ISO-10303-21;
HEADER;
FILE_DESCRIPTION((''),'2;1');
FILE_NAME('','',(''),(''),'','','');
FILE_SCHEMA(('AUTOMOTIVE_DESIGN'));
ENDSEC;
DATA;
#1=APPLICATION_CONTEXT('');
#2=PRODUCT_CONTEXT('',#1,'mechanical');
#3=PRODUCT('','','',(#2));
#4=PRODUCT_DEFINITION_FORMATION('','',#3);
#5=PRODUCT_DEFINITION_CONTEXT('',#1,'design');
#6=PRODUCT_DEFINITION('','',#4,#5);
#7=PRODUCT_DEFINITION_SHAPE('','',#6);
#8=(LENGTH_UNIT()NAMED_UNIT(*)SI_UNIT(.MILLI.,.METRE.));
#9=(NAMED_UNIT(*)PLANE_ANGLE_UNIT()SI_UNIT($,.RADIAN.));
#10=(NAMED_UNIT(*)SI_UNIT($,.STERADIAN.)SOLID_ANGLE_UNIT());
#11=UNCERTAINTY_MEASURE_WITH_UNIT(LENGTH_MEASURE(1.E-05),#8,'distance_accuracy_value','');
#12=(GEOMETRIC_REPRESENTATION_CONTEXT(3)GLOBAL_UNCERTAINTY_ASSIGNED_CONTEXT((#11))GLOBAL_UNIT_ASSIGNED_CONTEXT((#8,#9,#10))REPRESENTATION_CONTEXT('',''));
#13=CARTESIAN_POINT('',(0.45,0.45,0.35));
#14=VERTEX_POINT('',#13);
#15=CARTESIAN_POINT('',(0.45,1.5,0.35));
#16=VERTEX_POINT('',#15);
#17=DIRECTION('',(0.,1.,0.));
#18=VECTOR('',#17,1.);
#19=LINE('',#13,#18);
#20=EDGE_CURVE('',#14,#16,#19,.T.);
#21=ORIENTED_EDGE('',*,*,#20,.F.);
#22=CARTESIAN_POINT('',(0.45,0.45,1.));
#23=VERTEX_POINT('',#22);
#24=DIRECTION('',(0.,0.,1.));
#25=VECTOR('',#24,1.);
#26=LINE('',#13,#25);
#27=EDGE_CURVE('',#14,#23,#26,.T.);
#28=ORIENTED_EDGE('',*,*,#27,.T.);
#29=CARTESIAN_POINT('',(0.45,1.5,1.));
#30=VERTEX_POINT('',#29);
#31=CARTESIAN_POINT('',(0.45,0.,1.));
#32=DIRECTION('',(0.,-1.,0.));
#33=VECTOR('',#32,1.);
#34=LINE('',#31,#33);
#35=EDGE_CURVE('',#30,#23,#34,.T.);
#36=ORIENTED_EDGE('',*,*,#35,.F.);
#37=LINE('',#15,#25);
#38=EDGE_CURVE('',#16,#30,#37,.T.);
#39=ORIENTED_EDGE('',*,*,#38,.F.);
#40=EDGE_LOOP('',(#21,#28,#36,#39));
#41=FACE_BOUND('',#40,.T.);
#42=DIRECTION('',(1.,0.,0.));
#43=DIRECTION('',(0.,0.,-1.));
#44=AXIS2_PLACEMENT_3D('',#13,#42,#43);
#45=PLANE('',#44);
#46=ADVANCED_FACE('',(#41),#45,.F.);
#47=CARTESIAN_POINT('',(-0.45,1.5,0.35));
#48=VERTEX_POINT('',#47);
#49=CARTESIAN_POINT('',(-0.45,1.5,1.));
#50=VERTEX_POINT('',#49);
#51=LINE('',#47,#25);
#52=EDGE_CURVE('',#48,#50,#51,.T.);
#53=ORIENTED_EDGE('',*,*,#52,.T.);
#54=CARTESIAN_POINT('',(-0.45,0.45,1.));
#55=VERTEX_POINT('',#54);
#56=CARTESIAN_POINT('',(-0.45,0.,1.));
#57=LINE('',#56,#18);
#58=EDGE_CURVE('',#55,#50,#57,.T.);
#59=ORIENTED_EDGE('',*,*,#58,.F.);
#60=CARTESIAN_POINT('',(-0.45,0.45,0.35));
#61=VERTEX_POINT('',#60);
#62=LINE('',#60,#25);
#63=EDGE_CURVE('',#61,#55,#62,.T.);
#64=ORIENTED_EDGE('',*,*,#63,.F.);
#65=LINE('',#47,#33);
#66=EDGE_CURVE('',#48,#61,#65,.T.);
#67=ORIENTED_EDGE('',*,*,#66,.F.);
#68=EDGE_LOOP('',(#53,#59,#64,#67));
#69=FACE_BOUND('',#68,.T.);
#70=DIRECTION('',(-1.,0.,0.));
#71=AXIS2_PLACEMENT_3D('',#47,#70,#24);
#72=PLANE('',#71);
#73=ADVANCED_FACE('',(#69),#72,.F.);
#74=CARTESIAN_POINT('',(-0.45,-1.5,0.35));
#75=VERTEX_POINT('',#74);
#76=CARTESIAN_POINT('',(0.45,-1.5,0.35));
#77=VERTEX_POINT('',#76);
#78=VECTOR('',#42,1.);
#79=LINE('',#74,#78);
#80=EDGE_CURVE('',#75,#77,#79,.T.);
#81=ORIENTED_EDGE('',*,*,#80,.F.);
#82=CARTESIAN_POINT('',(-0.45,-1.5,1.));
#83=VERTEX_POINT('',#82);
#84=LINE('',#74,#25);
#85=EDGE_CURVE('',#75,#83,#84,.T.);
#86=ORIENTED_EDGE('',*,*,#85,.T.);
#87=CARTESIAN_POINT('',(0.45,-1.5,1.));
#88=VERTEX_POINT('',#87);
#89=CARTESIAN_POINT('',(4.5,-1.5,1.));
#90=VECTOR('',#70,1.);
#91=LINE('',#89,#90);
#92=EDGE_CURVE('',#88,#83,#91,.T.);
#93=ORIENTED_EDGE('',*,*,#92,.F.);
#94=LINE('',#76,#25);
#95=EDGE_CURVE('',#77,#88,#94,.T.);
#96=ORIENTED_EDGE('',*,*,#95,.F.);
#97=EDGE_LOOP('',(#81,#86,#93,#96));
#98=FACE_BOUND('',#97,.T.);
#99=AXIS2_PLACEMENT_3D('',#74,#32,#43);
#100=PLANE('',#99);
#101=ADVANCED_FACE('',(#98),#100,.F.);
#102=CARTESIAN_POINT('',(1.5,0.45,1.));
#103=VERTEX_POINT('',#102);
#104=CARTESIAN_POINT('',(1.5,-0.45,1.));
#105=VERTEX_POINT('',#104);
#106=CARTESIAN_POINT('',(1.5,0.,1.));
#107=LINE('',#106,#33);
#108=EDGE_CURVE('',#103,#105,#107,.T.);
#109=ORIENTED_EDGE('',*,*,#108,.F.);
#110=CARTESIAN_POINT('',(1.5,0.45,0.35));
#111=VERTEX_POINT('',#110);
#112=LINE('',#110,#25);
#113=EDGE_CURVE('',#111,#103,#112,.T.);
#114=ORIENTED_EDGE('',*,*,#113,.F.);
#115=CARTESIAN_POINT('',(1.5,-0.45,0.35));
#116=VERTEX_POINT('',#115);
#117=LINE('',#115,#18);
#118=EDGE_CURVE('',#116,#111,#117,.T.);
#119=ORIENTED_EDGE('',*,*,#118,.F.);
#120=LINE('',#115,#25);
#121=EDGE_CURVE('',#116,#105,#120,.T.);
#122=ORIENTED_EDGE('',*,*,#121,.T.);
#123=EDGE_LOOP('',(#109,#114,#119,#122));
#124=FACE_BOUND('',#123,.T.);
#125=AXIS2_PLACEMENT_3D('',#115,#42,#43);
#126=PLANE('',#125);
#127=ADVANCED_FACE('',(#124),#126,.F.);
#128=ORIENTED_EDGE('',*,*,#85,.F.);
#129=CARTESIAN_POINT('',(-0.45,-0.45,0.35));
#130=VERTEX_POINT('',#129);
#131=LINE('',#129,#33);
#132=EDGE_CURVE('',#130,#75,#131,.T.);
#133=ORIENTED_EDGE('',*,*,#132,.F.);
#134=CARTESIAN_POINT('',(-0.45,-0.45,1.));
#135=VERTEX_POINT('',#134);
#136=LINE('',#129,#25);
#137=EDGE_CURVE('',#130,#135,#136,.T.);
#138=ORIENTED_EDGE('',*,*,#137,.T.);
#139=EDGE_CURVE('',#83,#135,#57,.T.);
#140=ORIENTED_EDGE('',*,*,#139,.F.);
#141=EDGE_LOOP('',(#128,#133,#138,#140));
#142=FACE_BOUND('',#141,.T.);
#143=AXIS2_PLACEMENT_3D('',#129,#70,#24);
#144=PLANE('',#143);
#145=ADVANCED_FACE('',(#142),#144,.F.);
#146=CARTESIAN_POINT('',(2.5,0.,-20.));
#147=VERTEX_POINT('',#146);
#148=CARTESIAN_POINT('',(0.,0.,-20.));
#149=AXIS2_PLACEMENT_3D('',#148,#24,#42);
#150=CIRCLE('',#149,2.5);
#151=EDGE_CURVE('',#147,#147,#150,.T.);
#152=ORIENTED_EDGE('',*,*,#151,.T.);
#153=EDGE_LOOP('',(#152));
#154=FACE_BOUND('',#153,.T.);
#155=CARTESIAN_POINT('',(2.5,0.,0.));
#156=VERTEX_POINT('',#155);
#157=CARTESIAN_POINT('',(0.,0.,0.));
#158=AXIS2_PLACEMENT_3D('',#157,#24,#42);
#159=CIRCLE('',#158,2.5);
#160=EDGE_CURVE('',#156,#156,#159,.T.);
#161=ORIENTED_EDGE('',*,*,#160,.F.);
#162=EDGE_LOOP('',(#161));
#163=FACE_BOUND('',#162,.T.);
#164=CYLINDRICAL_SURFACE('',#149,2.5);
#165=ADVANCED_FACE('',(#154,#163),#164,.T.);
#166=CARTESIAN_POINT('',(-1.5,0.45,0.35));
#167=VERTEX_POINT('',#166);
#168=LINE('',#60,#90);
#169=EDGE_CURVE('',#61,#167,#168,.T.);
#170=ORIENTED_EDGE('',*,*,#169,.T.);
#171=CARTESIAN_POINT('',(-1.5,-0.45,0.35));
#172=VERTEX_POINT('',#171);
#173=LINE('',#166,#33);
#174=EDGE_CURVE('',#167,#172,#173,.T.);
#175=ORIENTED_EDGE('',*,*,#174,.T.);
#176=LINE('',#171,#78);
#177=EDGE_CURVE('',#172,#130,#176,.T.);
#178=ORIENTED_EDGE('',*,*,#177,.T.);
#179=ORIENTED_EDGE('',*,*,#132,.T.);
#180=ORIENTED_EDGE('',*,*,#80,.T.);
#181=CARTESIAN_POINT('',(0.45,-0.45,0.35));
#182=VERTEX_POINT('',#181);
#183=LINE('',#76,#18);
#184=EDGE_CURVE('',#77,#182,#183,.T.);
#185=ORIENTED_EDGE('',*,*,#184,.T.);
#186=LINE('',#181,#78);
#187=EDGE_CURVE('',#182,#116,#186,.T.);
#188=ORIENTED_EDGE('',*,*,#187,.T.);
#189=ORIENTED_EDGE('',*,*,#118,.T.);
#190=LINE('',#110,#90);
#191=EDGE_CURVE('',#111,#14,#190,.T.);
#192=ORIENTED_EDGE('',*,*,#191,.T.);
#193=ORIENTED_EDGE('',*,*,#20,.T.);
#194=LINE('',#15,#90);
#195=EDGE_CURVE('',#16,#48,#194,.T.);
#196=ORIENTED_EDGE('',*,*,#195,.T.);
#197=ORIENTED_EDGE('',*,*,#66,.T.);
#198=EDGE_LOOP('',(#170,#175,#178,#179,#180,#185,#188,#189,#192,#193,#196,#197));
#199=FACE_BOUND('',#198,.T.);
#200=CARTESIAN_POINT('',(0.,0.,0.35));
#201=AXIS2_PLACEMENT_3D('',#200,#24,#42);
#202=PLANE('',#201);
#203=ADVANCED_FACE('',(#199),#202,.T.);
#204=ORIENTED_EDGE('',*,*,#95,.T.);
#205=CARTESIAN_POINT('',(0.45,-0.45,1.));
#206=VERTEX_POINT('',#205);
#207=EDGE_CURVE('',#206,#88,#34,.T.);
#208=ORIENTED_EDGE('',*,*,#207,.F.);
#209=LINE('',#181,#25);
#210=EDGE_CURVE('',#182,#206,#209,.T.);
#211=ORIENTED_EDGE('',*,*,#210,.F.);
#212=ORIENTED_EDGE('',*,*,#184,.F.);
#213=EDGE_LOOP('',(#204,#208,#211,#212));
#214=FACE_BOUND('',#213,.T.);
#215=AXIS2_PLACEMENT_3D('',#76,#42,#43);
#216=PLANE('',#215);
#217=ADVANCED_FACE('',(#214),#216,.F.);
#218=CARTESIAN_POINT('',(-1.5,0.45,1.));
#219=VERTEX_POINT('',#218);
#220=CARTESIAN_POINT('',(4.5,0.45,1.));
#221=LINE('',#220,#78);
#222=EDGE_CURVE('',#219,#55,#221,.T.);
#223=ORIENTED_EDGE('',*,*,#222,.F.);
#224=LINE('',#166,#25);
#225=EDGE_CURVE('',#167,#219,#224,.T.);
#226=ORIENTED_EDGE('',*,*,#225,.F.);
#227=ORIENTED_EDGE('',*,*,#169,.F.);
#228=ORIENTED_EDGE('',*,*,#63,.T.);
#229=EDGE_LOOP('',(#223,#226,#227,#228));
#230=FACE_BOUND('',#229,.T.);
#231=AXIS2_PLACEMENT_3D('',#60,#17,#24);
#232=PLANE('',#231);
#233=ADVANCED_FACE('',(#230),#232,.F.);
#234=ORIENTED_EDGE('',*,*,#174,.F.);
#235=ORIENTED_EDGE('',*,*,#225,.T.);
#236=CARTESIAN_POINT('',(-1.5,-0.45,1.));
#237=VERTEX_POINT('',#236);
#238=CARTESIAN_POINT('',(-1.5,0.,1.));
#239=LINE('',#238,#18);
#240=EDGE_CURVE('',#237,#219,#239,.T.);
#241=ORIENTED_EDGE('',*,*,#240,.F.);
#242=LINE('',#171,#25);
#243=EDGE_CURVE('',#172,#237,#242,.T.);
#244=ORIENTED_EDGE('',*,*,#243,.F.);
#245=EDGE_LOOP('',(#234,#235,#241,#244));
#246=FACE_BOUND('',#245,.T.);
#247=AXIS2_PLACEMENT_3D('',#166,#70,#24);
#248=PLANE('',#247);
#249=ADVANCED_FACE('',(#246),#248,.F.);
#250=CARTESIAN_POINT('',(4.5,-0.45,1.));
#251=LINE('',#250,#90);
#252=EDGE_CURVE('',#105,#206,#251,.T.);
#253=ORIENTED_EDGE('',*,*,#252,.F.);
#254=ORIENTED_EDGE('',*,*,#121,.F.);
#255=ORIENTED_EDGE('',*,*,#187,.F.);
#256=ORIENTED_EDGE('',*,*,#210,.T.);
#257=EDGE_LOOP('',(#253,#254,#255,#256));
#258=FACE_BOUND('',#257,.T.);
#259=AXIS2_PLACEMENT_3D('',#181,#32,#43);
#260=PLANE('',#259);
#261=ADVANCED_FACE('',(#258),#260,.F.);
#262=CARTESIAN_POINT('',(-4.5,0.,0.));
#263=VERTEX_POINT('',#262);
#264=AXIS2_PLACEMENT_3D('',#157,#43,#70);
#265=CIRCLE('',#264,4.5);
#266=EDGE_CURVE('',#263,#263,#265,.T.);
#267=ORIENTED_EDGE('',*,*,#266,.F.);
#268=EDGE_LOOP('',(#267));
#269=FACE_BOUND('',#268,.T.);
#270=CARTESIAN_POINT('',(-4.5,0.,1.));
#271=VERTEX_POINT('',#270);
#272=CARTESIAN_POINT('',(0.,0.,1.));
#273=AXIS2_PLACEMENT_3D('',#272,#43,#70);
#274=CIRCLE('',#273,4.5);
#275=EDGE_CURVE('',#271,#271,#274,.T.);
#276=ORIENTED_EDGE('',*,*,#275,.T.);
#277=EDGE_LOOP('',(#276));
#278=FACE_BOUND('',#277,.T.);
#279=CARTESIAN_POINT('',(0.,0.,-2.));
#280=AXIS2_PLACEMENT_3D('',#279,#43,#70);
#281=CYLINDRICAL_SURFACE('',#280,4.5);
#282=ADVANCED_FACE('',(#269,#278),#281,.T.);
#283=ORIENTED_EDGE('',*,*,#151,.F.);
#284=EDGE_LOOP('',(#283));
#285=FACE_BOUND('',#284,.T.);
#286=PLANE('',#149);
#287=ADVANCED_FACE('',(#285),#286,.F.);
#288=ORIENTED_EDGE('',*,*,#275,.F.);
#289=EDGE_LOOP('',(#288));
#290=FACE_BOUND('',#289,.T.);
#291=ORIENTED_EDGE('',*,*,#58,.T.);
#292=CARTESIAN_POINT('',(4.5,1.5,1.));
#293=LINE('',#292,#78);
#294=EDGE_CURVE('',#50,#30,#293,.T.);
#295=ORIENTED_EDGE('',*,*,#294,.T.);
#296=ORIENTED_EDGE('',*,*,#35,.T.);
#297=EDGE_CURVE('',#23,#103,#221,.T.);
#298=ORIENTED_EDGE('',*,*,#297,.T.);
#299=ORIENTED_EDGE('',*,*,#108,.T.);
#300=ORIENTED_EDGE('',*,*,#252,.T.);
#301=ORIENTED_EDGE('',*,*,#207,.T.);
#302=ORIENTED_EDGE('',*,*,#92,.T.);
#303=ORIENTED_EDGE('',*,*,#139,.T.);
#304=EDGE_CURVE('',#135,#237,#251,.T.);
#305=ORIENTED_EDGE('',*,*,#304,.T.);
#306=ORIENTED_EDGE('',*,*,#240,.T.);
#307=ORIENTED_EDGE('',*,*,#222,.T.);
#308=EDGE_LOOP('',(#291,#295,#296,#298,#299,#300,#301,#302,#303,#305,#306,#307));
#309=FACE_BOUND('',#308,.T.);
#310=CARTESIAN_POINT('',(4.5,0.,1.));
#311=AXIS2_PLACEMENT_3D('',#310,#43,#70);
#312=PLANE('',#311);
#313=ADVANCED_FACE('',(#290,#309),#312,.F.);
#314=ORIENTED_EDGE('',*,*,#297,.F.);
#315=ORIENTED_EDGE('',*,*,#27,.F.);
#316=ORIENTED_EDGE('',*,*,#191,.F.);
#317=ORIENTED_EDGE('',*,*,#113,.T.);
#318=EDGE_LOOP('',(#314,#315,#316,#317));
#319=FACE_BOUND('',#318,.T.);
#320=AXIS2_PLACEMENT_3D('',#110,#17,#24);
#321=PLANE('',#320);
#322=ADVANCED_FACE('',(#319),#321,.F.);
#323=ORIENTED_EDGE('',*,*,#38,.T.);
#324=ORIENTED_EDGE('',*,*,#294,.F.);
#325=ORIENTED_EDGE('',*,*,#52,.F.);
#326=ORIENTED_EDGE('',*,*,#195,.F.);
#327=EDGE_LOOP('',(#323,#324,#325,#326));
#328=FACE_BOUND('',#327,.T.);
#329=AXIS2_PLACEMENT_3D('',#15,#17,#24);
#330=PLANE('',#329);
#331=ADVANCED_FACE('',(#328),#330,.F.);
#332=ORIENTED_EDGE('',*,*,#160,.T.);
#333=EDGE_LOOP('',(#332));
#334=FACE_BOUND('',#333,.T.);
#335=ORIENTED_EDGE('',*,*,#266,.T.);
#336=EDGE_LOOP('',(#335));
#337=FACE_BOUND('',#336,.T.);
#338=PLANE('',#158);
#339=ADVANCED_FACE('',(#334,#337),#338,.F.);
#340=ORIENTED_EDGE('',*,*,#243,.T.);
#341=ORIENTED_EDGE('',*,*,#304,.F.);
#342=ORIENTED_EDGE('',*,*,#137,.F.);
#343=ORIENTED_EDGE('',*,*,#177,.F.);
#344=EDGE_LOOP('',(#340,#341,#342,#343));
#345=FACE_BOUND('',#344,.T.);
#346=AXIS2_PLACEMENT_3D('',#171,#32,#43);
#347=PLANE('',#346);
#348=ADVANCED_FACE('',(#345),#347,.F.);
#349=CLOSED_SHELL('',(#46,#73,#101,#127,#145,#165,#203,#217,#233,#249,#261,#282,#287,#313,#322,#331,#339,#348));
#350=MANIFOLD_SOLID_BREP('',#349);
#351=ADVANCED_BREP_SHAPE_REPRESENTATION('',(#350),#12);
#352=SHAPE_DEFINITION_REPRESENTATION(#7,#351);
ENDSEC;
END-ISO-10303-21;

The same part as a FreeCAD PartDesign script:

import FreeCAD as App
import Part
import Sketcher

V = App.Vector
Q = App.Units.Quantity

doc = App.newDocument("Part")
body = doc.addObject("PartDesign::Body", "Body")

sketch1 = body.newObject("Sketcher::SketchObject", "Sketch")
sketch1.AttachmentSupport = (doc.getObject("XY_Plane"), [""])
sketch1.MapMode = "FlatFace"
sketch1.addGeometry(Part.Circle(V(0, 0, 0), V(0, 0, 1), 2.5), False)
sketch1.addConstraint(Sketcher.Constraint("Coincident", 0, 3, -1, 1))
sketch1.addConstraint(Sketcher.Constraint("Diameter", 0, Q("5 mm")))
pad1 = body.newObject("PartDesign::Pad", "Pad")
pad1.Profile = sketch1
pad1.Length = 20
pad1.Reversed = True

sketch2 = body.newObject("Sketcher::SketchObject", "Sketch001")
sketch2.AttachmentSupport = (doc.getObject("XZ_Plane"), [""])
sketch2.MapMode = "FlatFace"
sketch2.addGeometry(Part.LineSegment(V(0, 0, 0), V(0, 1, 0)), False)
sketch2.addGeometry(Part.LineSegment(V(0, 1, 0), V(4.5, 1, 0)), False)
sketch2.addGeometry(Part.LineSegment(V(4.5, 1, 0), V(4.5, 0, 0)), False)
sketch2.addGeometry(Part.LineSegment(V(4.5, 0, 0), V(0, 0, 0)), False)
sketch2.addConstraint(Sketcher.Constraint("Coincident", 0, 2, 1, 1))
sketch2.addConstraint(Sketcher.Constraint("Coincident", 1, 2, 2, 1))
sketch2.addConstraint(Sketcher.Constraint("Coincident", 2, 2, 3, 1))
sketch2.addConstraint(Sketcher.Constraint("Coincident", 3, 2, 0, 1))
sketch2.addConstraint(Sketcher.Constraint("Vertical", 0))
sketch2.addConstraint(Sketcher.Constraint("Horizontal", 1))
sketch2.addConstraint(Sketcher.Constraint("Vertical", 2))
sketch2.addConstraint(Sketcher.Constraint("Horizontal", 3))
sketch2.addConstraint(Sketcher.Constraint("Coincident", 3, 2, -1, 1))
sketch2.addConstraint(Sketcher.Constraint("DistanceY", 0, 1, 0, 2, Q("1 mm")))
sketch2.addConstraint(Sketcher.Constraint("DistanceX", 1, 1, 1, 2, Q("4.5 mm")))
revolution = body.newObject("PartDesign::Revolution", "Revolution")
revolution.Profile = sketch2
revolution.ReferenceAxis = (sketch2, ["V_Axis"])
revolution.Angle = 360

sketch3 = body.newObject("Sketcher::SketchObject", "Sketch002")
sketch3.AttachmentSupport = (doc.getObject("XY_Plane"), [""])
sketch3.MapMode = "FlatFace"
sketch3.AttachmentOffset = App.Placement(V(0, 0, 1.01), App.Rotation())
sketch3.addGeometry(Part.LineSegment(V(-0.5, -1.5, 0), V(0.5, -1.5, 0)), False)
sketch3.addGeometry(Part.LineSegment(V(0.5, -1.5, 0), V(0.5, -0.5, 0)), False)
sketch3.addGeometry(Part.LineSegment(V(0.5, -0.5, 0), V(1.5, -0.5, 0)), False)
sketch3.addGeometry(Part.LineSegment(V(1.5, -0.5, 0), V(1.5, 0.5, 0)), False)
sketch3.addGeometry(Part.LineSegment(V(1.5, 0.5, 0), V(0.5, 0.5, 0)), False)
sketch3.addGeometry(Part.LineSegment(V(0.5, 0.5, 0), V(0.5, 1.5, 0)), False)
sketch3.addGeometry(Part.LineSegment(V(0.5, 1.5, 0), V(-0.5, 1.5, 0)), False)
sketch3.addGeometry(Part.LineSegment(V(-0.5, 1.5, 0), V(-0.5, 0.5, 0)), False)
sketch3.addGeometry(Part.LineSegment(V(-0.5, 0.5, 0), V(-1.5, 0.5, 0)), False)
sketch3.addGeometry(Part.LineSegment(V(-1.5, 0.5, 0), V(-1.5, -0.5, 0)), False)
sketch3.addGeometry(Part.LineSegment(V(-1.5, -0.5, 0), V(-0.5, -0.5, 0)), False)
sketch3.addGeometry(Part.LineSegment(V(-0.5, -0.5, 0), V(-0.5, -1.5, 0)), False)
sketch3.addConstraint(Sketcher.Constraint("Coincident", 0, 2, 1, 1))
sketch3.addConstraint(Sketcher.Constraint("Coincident", 1, 2, 2, 1))
sketch3.addConstraint(Sketcher.Constraint("Coincident", 2, 2, 3, 1))
sketch3.addConstraint(Sketcher.Constraint("Coincident", 3, 2, 4, 1))
sketch3.addConstraint(Sketcher.Constraint("Coincident", 4, 2, 5, 1))
sketch3.addConstraint(Sketcher.Constraint("Coincident", 5, 2, 6, 1))
sketch3.addConstraint(Sketcher.Constraint("Coincident", 6, 2, 7, 1))
sketch3.addConstraint(Sketcher.Constraint("Coincident", 7, 2, 8, 1))
sketch3.addConstraint(Sketcher.Constraint("Coincident", 8, 2, 9, 1))
sketch3.addConstraint(Sketcher.Constraint("Coincident", 9, 2, 10, 1))
sketch3.addConstraint(Sketcher.Constraint("Coincident", 10, 2, 11, 1))
sketch3.addConstraint(Sketcher.Constraint("Coincident", 11, 2, 0, 1))
sketch3.addConstraint(Sketcher.Constraint("Horizontal", 0))
sketch3.addConstraint(Sketcher.Constraint("Vertical", 1))
sketch3.addConstraint(Sketcher.Constraint("Horizontal", 2))
sketch3.addConstraint(Sketcher.Constraint("Vertical", 3))
sketch3.addConstraint(Sketcher.Constraint("Horizontal", 4))
sketch3.addConstraint(Sketcher.Constraint("Vertical", 5))
sketch3.addConstraint(Sketcher.Constraint("Horizontal", 6))
sketch3.addConstraint(Sketcher.Constraint("Vertical", 7))
sketch3.addConstraint(Sketcher.Constraint("Horizontal", 8))
sketch3.addConstraint(Sketcher.Constraint("Vertical", 9))
sketch3.addConstraint(Sketcher.Constraint("Horizontal", 10))
sketch3.addConstraint(Sketcher.Constraint("Vertical", 11))
sketch3.addConstraint(Sketcher.Constraint("Symmetric", 0, 2, 6, 2, -1, 1))
sketch3.addConstraint(Sketcher.Constraint("Symmetric", 2, 2, 8, 2, -1, 1))
sketch3.addConstraint(Sketcher.Constraint("Symmetric", 4, 2, 10, 2, -1, 1))
sketch3.addConstraint(Sketcher.Constraint("Symmetric", 4, 2, 7, 2, -2))
sketch3.addConstraint(Sketcher.Constraint("Equal", 10, 1))
sketch3.addConstraint(Sketcher.Constraint("Equal", 6, 3))
sketch3.addConstraint(Sketcher.Constraint("DistanceX", 0, 1, 0, 2, Q("0.9 mm")))
sketch3.addConstraint(Sketcher.Constraint("DistanceY", 0, 2, 5, 2, Q("3 mm")))
pocket1 = body.newObject("PartDesign::Pocket", "Pocket")
pocket1.Profile = sketch3
pocket1.Length = 0.66

doc.recompute()
